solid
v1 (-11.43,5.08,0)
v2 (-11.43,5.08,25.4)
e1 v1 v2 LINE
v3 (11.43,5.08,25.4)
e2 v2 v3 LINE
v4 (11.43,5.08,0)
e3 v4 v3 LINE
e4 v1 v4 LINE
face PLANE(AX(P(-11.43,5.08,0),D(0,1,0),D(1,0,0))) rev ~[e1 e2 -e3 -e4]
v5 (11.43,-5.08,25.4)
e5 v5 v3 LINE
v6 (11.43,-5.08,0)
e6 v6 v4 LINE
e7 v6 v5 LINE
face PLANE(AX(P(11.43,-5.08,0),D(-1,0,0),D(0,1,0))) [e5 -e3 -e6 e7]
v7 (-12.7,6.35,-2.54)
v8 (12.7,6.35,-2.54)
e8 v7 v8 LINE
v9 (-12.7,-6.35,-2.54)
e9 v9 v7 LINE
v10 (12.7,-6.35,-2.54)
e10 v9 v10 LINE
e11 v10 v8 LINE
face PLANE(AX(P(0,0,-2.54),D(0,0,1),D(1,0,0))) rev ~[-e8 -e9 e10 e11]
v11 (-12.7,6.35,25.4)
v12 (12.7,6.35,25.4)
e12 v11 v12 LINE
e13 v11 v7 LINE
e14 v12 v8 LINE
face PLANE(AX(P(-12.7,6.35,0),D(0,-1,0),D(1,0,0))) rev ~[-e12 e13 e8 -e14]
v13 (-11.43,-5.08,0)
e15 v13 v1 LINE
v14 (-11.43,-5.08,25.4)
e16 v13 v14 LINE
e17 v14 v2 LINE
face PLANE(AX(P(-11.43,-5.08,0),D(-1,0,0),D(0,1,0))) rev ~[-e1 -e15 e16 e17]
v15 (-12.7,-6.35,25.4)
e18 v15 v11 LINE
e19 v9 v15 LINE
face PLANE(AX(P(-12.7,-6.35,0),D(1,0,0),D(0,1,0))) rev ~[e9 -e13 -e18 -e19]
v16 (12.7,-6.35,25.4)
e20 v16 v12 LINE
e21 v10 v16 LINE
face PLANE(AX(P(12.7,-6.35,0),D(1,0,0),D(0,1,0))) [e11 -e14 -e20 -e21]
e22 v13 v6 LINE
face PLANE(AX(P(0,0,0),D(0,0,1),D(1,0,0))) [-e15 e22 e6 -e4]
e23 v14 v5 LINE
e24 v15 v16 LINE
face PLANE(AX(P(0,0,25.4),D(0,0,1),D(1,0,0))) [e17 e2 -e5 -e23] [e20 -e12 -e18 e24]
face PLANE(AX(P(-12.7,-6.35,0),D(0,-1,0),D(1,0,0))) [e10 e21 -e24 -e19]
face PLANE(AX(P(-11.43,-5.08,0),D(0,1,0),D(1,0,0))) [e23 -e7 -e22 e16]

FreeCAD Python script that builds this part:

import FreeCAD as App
import Part
import Sketcher
from FreeCAD import Vector
Q = App.Units.Quantity


def add_polygon(sketch, points):
    """Adds a closed chain of lines whose ends are joined by coincident constraints."""
    first, n = sketch.GeometryCount, len(points)
    for a, b in zip(points, points[1:] + points[:1]):
        sketch.addGeometry(Part.LineSegment(App.Vector(*a, 0), App.Vector(*b, 0)), False)
    for i in range(n):
        sketch.addConstraint(Sketcher.Constraint("Coincident", first + i, 2, first + (i + 1) % n, 1))

doc = App.newDocument("Part")
params = doc.addObject("Spreadsheet::Sheet", "Params")
for row, (alias, value) in enumerate([
    ("sketch1_width", "1 in"),
    ("sketch1_width2", "0.9 in"),
    ("sketch1_height", "0.5 in"),
    ("sketch1_height2", "0.4 in"),
    ("pad1_length", "1 in"),
    ("sketch2_width", "1 in"),
    ("sketch2_height", "0.5 in"),
    ("pad2_length", "0.1 in"),
], start=1):
    params.set(f"A{row}", alias)
    params.set(f"B{row}", "=" + value)
    params.setAlias(f"B{row}", alias)

body = doc.addObject("PartDesign::Body", "Body")

# Sketch on XY plane
sketch1 = doc.addObject("Sketcher::SketchObject", "Sketch")
body.addObject(sketch1)
sketch1.AttachmentSupport = (doc.XY_Plane, [""])
sketch1.MapMode = "FlatFace"
add_polygon(sketch1, [(-13, 6), (-13, -6), (13, -6), (13, 6)])  # lines 0-3
add_polygon(sketch1, [(11, -5), (-11, -5), (-11, 5), (11, 5)])  # lines 4-7
sketch1.addConstraint([
    Sketcher.Constraint("Vertical", 0),
    Sketcher.Constraint("Horizontal", 1),
    Sketcher.Constraint("Vertical", 2),
    Sketcher.Constraint("Horizontal", 3),
    Sketcher.Constraint("Horizontal", 4),
    Sketcher.Constraint("Vertical", 5),
    Sketcher.Constraint("Horizontal", 6),
    Sketcher.Constraint("Vertical", 7),
    Sketcher.Constraint("Symmetric", 0, 2, 2, 2, -1, 1),
    Sketcher.Constraint("Symmetric", 4, 2, 6, 2, -1, 1),
    Sketcher.Constraint("DistanceX", 1, 1, 1, 2, Q("1 in")),
    Sketcher.Constraint("DistanceX", 4, 2, 4, 1, Q("0.9 in")),
    Sketcher.Constraint("DistanceY", 0, 2, 0, 1, Q("0.5 in")),
    Sketcher.Constraint("DistanceY", 5, 1, 5, 2, Q("0.4 in")),
])
sketch1.setExpression("Constraints[18]", "Params.sketch1_width")
sketch1.setExpression("Constraints[19]", "Params.sketch1_width2")
sketch1.setExpression("Constraints[20]", "Params.sketch1_height")
sketch1.setExpression("Constraints[21]", "Params.sketch1_height2")
pad1 = doc.addObject("PartDesign::Pad", "Pad")
body.addObject(pad1)
pad1.Profile = sketch1
pad1.setExpression("Length", "Params.pad1_length")

# Sketch on XY plane
sketch2 = doc.addObject("Sketcher::SketchObject", "Sketch001")
body.addObject(sketch2)
sketch2.AttachmentSupport = (doc.XY_Plane, [""])
sketch2.MapMode = "FlatFace"
add_polygon(sketch2, [(-13, 6), (-13, -6), (13, -6), (13, 6)])  # lines 0-3
sketch2.addConstraint([
    Sketcher.Constraint("Vertical", 0),
    Sketcher.Constraint("Horizontal", 1),
    Sketcher.Constraint("Vertical", 2),
    Sketcher.Constraint("Horizontal", 3),
    Sketcher.Constraint("Symmetric", 0, 2, 2, 2, -1, 1),
    Sketcher.Constraint("DistanceX", 1, 1, 1, 2, Q("1 in")),
    Sketcher.Constraint("DistanceY", 0, 2, 0, 1, Q("0.5 in")),
])
sketch2.setExpression("Constraints[9]", "Params.sketch2_width")
sketch2.setExpression("Constraints[10]", "Params.sketch2_height")
pad2 = doc.addObject("PartDesign::Pad", "Pad001")
body.addObject(pad2)
pad2.Profile = sketch2
pad2.setExpression("Length", "Params.pad2_length")
pad2.Reversed = True

doc.recompute()
